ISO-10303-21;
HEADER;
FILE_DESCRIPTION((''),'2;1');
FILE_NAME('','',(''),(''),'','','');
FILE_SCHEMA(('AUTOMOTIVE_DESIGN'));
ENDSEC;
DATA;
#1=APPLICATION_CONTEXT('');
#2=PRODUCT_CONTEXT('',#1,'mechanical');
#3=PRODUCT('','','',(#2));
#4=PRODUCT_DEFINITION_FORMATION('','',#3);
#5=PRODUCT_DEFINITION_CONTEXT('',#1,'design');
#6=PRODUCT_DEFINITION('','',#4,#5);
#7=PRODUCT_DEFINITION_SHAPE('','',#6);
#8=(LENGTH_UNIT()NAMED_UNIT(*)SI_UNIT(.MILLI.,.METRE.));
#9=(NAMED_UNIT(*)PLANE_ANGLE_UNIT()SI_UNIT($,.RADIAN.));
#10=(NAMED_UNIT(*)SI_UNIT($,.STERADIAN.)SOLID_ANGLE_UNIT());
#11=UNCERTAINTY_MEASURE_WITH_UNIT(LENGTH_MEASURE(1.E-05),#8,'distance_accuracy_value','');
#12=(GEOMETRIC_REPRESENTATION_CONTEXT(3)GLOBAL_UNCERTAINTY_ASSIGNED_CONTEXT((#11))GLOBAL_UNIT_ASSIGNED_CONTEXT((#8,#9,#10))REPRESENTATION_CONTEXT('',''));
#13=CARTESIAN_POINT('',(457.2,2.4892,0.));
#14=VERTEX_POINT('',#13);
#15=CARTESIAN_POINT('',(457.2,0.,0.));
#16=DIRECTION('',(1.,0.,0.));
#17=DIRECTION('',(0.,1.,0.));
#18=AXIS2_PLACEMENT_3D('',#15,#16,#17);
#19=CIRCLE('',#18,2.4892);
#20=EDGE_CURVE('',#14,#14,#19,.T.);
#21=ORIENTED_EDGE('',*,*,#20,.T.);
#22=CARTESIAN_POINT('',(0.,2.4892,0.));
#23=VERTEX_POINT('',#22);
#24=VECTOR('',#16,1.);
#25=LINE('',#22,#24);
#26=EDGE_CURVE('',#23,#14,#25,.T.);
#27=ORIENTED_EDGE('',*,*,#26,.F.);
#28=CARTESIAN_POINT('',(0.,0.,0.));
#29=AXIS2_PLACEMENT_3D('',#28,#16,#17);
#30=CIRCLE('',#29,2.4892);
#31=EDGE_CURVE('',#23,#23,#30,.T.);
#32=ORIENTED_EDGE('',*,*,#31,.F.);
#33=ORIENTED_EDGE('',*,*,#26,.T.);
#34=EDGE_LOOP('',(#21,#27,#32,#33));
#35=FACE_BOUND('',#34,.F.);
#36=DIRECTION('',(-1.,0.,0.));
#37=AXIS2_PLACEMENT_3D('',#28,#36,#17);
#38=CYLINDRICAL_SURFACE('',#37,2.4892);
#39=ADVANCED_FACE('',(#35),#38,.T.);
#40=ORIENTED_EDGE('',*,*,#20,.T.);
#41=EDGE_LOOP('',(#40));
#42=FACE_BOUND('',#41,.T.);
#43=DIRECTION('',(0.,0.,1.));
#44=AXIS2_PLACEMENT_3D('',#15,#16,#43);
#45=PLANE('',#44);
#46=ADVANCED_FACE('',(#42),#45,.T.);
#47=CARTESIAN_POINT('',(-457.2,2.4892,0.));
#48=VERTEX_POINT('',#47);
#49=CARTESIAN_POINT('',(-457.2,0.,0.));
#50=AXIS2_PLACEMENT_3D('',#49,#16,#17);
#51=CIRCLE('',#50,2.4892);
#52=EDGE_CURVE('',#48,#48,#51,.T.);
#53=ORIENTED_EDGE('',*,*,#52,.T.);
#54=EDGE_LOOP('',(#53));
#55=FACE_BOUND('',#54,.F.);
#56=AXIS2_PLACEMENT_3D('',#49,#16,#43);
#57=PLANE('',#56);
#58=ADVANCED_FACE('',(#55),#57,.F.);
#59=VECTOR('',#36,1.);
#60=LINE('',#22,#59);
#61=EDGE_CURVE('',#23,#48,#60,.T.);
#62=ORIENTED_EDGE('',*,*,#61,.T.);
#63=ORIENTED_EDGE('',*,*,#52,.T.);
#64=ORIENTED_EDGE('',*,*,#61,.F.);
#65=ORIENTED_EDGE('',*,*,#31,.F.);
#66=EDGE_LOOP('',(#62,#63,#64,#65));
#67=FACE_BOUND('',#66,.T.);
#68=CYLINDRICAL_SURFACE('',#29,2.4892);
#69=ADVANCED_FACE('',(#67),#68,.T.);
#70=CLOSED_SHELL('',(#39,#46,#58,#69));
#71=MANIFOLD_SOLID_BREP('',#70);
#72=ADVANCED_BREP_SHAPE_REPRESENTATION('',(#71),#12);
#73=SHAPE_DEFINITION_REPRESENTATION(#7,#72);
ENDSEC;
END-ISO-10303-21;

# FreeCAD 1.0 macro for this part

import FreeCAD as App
import Part
import Sketcher
from FreeCAD import Vector
Q = App.Units.Quantity

doc = App.newDocument("Part")
body = doc.addObject("PartDesign::Body", "Body")

# Sketch on YZ plane
sketch1 = doc.addObject("Sketcher::SketchObject", "Sketch")
body.addObject(sketch1)
sketch1.AttachmentSupport = (doc.YZ_Plane, [""])
sketch1.MapMode = "FlatFace"
sketch1.addGeometry(Part.Circle(Vector(0, 0, 0), Vector(0, 0, 1), 2.5), False)
sketch1.addConstraint([
    Sketcher.Constraint("Coincident", 0, 3, -1, 1),
    Sketcher.Constraint("Diameter", 0, Q("0.196 in")),
])
pad1 = doc.addObject("PartDesign::Pad", "Pad")
body.addObject(pad1)
pad1.Profile = sketch1
pad1.Length = Q("36 in")
pad1.Midplane = True

doc.recompute()
